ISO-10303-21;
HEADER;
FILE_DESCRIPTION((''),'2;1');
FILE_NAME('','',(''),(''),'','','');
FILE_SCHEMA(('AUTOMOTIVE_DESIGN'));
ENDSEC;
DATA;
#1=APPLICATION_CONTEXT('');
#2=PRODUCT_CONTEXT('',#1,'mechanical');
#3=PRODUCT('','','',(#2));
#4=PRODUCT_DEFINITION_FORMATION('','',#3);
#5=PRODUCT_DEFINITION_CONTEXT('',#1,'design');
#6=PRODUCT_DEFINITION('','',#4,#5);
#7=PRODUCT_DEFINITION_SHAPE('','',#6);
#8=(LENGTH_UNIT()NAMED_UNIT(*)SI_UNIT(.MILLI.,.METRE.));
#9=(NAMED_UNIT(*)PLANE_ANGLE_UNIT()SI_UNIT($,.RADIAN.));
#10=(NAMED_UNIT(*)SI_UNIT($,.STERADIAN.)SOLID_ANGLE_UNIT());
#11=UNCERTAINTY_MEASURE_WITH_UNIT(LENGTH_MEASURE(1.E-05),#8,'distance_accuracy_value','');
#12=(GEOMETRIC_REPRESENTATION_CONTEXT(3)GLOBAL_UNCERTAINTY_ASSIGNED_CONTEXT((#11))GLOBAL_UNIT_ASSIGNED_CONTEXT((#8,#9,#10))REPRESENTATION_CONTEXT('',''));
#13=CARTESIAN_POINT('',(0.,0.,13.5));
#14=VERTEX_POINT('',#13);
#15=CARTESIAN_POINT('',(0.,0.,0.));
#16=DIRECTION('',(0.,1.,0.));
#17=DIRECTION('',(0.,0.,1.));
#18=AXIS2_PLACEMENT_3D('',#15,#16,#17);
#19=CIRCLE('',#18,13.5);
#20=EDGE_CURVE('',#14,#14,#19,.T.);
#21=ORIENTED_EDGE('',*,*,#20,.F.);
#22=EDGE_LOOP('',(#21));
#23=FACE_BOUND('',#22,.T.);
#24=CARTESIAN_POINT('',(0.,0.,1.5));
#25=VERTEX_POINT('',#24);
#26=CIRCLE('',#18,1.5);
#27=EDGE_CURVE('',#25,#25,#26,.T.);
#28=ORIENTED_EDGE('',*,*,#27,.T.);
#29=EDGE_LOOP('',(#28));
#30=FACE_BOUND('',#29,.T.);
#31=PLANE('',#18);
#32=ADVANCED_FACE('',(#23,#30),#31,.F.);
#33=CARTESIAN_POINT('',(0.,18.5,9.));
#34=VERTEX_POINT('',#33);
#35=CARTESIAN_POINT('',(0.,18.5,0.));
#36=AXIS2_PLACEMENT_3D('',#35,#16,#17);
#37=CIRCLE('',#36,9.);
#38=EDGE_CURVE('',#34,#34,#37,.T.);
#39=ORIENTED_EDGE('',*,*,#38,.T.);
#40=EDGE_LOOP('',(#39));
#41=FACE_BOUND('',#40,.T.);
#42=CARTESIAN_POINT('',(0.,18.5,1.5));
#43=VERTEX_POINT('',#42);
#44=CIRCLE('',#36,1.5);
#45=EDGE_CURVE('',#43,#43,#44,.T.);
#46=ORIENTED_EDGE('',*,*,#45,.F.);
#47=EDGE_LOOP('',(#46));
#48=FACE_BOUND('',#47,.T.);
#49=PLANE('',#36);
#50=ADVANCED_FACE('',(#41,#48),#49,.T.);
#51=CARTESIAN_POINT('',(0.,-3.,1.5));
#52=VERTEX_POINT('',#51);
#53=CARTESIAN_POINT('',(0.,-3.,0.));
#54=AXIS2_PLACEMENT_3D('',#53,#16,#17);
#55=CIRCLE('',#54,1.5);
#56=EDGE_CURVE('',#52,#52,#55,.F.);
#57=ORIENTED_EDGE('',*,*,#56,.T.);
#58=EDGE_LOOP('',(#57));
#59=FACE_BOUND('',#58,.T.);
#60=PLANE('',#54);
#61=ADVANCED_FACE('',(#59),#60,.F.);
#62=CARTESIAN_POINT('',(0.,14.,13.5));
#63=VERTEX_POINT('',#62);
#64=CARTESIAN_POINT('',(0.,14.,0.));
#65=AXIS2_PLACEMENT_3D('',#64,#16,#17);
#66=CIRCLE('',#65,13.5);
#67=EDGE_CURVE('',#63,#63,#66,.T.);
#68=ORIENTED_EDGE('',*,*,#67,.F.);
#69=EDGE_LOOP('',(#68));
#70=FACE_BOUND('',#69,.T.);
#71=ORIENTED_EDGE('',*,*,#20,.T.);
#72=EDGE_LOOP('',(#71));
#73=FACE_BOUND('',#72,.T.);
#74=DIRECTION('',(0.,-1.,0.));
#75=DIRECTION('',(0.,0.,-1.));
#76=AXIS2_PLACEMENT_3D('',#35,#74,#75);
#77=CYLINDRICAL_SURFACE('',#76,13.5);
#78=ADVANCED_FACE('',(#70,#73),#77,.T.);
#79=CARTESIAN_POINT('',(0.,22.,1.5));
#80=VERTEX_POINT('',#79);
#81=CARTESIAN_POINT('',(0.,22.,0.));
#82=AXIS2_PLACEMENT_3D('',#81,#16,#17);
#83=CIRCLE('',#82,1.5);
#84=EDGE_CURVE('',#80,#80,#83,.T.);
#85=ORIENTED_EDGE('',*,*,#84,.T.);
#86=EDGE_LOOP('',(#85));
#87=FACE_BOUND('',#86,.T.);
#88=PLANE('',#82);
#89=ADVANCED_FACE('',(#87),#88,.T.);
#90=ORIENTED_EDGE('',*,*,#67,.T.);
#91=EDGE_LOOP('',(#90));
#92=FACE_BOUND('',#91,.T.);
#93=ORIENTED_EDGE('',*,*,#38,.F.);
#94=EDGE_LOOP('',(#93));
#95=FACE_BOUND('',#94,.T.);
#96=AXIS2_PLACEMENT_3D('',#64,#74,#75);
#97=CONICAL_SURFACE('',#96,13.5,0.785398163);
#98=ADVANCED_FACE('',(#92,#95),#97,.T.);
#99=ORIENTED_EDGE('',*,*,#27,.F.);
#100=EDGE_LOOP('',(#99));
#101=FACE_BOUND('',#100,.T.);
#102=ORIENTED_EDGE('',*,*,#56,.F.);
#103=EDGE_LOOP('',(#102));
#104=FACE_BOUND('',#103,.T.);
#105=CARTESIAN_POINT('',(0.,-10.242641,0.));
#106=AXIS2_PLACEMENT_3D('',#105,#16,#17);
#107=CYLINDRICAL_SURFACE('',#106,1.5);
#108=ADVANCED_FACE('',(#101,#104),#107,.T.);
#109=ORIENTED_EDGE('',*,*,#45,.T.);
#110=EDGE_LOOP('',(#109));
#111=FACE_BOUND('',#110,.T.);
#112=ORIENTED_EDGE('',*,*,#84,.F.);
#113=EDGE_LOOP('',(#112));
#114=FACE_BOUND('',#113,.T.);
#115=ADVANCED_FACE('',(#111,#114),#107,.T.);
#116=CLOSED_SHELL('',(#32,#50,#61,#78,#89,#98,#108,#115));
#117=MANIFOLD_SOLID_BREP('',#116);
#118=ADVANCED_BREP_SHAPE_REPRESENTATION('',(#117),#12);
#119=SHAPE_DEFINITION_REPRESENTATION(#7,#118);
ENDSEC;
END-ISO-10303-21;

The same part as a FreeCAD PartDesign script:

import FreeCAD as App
import Part
import Sketcher
from FreeCAD import Vector


def add_polygon(sketch, points):
    """Adds a closed chain of lines whose ends are joined by coincident constraints."""
    first, n = sketch.GeometryCount, len(points)
    for a, b in zip(points, points[1:] + points[:1]):
        sketch.addGeometry(Part.LineSegment(App.Vector(*a, 0), App.Vector(*b, 0)), False)
    for i in range(n):
        sketch.addConstraint(Sketcher.Constraint("Coincident", first + i, 2, first + (i + 1) % n, 1))

doc = App.newDocument("Part")
body = doc.addObject("PartDesign::Body", "Body")

# Sketch on XZ plane
sketch1 = body.newObject("Sketcher::SketchObject", "Sketch")
sketch1.AttachmentSupport = (doc.getObject("XZ_Plane"), [""])
sketch1.MapMode = "FlatFace"
sketch1.addGeometry(Part.Circle(Vector(0, 0, 0), Vector(0, 0, 1), 13.5), False)
sketch1.addConstraint(Sketcher.Constraint("Coincident", 0, 3, -1, 1))
sketch1.addConstraint(Sketcher.Constraint("Diameter", 0, 27.0))
pad1 = body.newObject("PartDesign::Pad", "Pad")
pad1.Profile = sketch1
pad1.Length = 18.5
pad1.Reversed = True

# Sketch on XY plane
sketch2 = body.newObject("Sketcher::SketchObject", "Sketch001")
sketch2.AttachmentSupport = (doc.getObject("XY_Plane"), [""])
sketch2.MapMode = "FlatFace"
add_polygon(sketch2, [(-13.5, 14), (-9, 18.5), (-13.5, 18.5)])  # lines 0-2
sketch2.addConstraint(Sketcher.Constraint("Horizontal", 1))
sketch2.addConstraint(Sketcher.Constraint("Vertical", 2))
sketch2.addConstraint(Sketcher.Constraint("Equal", 1, 2))
sketch2.addConstraint(Sketcher.Constraint("DistanceX", 1, 2, 1, 1, 4.5))
sketch2.addConstraint(Sketcher.Constraint("DistanceX", 0, 2, -1, 1, 9.0))
sketch2.addConstraint(Sketcher.Constraint("DistanceY", -1, 1, 2, 2, 14.0))
groove = body.newObject("PartDesign::Groove", "Groove")
groove.Profile = sketch2
groove.ReferenceAxis = (sketch2, ["V_Axis"])
groove.Angle = 360

# Sketch on XZ plane
sketch3 = body.newObject("Sketcher::SketchObject", "Sketch002")
sketch3.AttachmentSupport = (doc.getObject("XZ_Plane"), [""])
sketch3.MapMode = "FlatFace"
sketch3.AttachmentOffset = App.Placement(Vector(0, 0, -18.5), App.Rotation())
sketch3.addGeometry(Part.Circle(Vector(0, 0, 0), Vector(0, 0, 1), 1.5), False)
sketch3.addConstraint(Sketcher.Constraint("Coincident", 0, 3, -1, 1))
sketch3.addConstraint(Sketcher.Constraint("Diameter", 0, 3.0))
pad2 = body.newObject("PartDesign::Pad", "Pad001")
pad2.Profile = sketch3
pad2.Type = "TwoLengths"
pad2.Length = 3.5
pad2.Length2 = 21.5
pad2.Reversed = True

doc.recompute()
